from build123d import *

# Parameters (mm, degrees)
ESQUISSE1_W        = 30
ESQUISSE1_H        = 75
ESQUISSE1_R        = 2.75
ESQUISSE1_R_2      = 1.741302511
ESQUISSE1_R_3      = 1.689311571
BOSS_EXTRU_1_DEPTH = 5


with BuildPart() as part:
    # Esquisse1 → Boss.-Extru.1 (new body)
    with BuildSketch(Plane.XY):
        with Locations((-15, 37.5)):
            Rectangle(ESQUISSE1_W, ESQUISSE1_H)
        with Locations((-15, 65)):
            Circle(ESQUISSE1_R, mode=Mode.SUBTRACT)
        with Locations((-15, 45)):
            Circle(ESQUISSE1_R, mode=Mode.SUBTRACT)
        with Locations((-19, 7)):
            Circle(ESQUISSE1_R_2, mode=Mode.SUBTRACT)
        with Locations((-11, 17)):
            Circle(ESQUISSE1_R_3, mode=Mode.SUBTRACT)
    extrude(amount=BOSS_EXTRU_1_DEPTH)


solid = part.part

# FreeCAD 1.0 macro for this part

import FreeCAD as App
import Part
import Sketcher
Q = App.Units.Quantity

doc = App.newDocument("Part")
body = doc.addObject("PartDesign::Body", "Body")

sketch1 = body.newObject("Sketcher::SketchObject", "Sketch")
sketch1.AttachmentSupport = (doc.getObject("XY_Plane"), [""])
sketch1.MapMode = "FlatFace"
sketch1.addGeometry([
    Part.LineSegment(App.Vector(-30, 75, 0), App.Vector(-30, 0, 0)),
    Part.LineSegment(App.Vector(-30, 0, 0), App.Vector(0, 0, 0)),
    Part.LineSegment(App.Vector(0, 0, 0), App.Vector(0, 75, 0)),
    Part.LineSegment(App.Vector(0, 75, 0), App.Vector(-30, 75, 0)),
    Part.Circle(App.Vector(-19, 7, 0), App.Vector(0, 0, 1), 1.7),
    Part.Circle(App.Vector(-11, 17, 0), App.Vector(0, 0, 1), 1.7),
    Part.Circle(App.Vector(-15, 45, 0), App.Vector(0, 0, 1), 2.8),
    Part.Circle(App.Vector(-15, 65, 0), App.Vector(0, 0, 1), 2.8),
], False)
sketch1.addConstraint([
    Sketcher.Constraint("Coincident", 0, 2, 1, 1),
    Sketcher.Constraint("Coincident", 1, 2, 2, 1),
    Sketcher.Constraint("Coincident", 2, 2, 3, 1),
    Sketcher.Constraint("Coincident", 3, 2, 0, 1),
    Sketcher.Constraint("Vertical", 0),
    Sketcher.Constraint("Horizontal", 1),
    Sketcher.Constraint("Vertical", 2),
    Sketcher.Constraint("Horizontal", 3),
    Sketcher.Constraint("Coincident", 1, 2, -1, 1),
    Sketcher.Constraint("Equal", 6, 7),
    Sketcher.Constraint("Vertical", 6, 3, 7, 3),
    Sketcher.Constraint("Diameter", 6, Q("5.5 mm")),
    Sketcher.Constraint("DistanceX", 1, 1, 1, 2, Q("30 mm")),
    Sketcher.Constraint("DistanceY", 0, 2, 0, 1, Q("75 mm")),
    Sketcher.Constraint("DistanceX", 4, 3, -1, 1, Q("19 mm")),
    Sketcher.Constraint("DistanceY", -1, 1, 4, 3, Q("7 mm")),
    Sketcher.Constraint("DistanceX", 5, 3, -1, 1, Q("11 mm")),
    Sketcher.Constraint("DistanceY", -1, 1, 5, 3, Q("17 mm")),
    Sketcher.Constraint("DistanceX", 6, 3, -1, 1, Q("15 mm")),
    Sketcher.Constraint("DistanceY", -1, 1, 6, 3, Q("45 mm")),
    Sketcher.Constraint("DistanceY", -1, 1, 7, 3, Q("65 mm")),
    Sketcher.Constraint("Diameter", 4, Q("3.482605 mm")),
    Sketcher.Constraint("Diameter", 5, Q("3.378623 mm")),
])
pad1 = body.newObject("PartDesign::Pad", "Pad")
pad1.Profile = sketch1
pad1.Length = 5

doc.recompute()
